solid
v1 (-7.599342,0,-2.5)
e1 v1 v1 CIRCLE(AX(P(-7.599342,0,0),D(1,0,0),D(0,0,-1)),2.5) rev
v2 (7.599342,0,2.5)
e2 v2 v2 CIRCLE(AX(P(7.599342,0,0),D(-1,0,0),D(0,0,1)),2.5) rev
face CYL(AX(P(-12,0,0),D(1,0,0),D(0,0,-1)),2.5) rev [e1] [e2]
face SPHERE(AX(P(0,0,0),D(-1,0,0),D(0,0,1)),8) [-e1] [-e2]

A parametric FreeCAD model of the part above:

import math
import FreeCAD as App
import Part
import Sketcher

V = App.Vector

doc = App.newDocument("Part")
body = doc.addObject("PartDesign::Body", "Body")

sketch1 = body.newObject("Sketcher::SketchObject", "Sketch")
sketch1.AttachmentSupport = (doc.getObject("XZ_Plane"), [""])
sketch1.MapMode = "FlatFace"
sketch1.addGeometry([
    Part.LineSegment(V(-7, 4, 0), V(7, -4, 0)),
    Part.ArcOfCircle(Part.Circle(V(0, 0, 0), V(0, 0, 1), 8), math.radians(153), math.radians(333)),
], False)
sketch1.addGeometry(Part.LineSegment(V(-7, 4, 0), V(7, -4, 0)), True)
sketch1.addConstraint([
    Sketcher.Constraint("Coincident", 0, 1, 1, 1),
    Sketcher.Constraint("Coincident", 1, 2, 0, 2),
    Sketcher.Constraint("Coincident", 1, 3, -1, 1),
    Sketcher.Constraint("Coincident", 2, 1, 0, 1),
    Sketcher.Constraint("Coincident", 2, 2, 1, 2),
    Sketcher.Constraint("Radius", 1, 8.0),
    Sketcher.Constraint("DistanceX", 0, 1, -1, 1, 7.10693),
    Sketcher.Constraint("DistanceX", -1, 1, 1, 2, 7.10693),
])
revolution = body.newObject("PartDesign::Revolution", "Revolution")
revolution.Profile = sketch1
revolution.ReferenceAxis = (sketch1, ["Axis0"])
revolution.Angle = 360

sketch2 = body.newObject("Sketcher::SketchObject", "Sketch001")
sketch2.AttachmentSupport = (doc.getObject("YZ_Plane"), [""])
sketch2.MapMode = "FlatFace"
sketch2.AttachmentOffset = App.Placement(V(0, 0, 8), App.Rotation())
sketch2.addGeometry(Part.Circle(V(0, 0, 0), V(0, 0, 1), 2.5), False)
sketch2.addConstraint([
    Sketcher.Constraint("Coincident", 0, 3, -1, 1),
    Sketcher.Constraint("Diameter", 0, 5.0),
])
pocket1 = body.newObject("PartDesign::Pocket", "Pocket")
pocket1.Profile = sketch2
pocket1.Length = 20

doc.recompute()
